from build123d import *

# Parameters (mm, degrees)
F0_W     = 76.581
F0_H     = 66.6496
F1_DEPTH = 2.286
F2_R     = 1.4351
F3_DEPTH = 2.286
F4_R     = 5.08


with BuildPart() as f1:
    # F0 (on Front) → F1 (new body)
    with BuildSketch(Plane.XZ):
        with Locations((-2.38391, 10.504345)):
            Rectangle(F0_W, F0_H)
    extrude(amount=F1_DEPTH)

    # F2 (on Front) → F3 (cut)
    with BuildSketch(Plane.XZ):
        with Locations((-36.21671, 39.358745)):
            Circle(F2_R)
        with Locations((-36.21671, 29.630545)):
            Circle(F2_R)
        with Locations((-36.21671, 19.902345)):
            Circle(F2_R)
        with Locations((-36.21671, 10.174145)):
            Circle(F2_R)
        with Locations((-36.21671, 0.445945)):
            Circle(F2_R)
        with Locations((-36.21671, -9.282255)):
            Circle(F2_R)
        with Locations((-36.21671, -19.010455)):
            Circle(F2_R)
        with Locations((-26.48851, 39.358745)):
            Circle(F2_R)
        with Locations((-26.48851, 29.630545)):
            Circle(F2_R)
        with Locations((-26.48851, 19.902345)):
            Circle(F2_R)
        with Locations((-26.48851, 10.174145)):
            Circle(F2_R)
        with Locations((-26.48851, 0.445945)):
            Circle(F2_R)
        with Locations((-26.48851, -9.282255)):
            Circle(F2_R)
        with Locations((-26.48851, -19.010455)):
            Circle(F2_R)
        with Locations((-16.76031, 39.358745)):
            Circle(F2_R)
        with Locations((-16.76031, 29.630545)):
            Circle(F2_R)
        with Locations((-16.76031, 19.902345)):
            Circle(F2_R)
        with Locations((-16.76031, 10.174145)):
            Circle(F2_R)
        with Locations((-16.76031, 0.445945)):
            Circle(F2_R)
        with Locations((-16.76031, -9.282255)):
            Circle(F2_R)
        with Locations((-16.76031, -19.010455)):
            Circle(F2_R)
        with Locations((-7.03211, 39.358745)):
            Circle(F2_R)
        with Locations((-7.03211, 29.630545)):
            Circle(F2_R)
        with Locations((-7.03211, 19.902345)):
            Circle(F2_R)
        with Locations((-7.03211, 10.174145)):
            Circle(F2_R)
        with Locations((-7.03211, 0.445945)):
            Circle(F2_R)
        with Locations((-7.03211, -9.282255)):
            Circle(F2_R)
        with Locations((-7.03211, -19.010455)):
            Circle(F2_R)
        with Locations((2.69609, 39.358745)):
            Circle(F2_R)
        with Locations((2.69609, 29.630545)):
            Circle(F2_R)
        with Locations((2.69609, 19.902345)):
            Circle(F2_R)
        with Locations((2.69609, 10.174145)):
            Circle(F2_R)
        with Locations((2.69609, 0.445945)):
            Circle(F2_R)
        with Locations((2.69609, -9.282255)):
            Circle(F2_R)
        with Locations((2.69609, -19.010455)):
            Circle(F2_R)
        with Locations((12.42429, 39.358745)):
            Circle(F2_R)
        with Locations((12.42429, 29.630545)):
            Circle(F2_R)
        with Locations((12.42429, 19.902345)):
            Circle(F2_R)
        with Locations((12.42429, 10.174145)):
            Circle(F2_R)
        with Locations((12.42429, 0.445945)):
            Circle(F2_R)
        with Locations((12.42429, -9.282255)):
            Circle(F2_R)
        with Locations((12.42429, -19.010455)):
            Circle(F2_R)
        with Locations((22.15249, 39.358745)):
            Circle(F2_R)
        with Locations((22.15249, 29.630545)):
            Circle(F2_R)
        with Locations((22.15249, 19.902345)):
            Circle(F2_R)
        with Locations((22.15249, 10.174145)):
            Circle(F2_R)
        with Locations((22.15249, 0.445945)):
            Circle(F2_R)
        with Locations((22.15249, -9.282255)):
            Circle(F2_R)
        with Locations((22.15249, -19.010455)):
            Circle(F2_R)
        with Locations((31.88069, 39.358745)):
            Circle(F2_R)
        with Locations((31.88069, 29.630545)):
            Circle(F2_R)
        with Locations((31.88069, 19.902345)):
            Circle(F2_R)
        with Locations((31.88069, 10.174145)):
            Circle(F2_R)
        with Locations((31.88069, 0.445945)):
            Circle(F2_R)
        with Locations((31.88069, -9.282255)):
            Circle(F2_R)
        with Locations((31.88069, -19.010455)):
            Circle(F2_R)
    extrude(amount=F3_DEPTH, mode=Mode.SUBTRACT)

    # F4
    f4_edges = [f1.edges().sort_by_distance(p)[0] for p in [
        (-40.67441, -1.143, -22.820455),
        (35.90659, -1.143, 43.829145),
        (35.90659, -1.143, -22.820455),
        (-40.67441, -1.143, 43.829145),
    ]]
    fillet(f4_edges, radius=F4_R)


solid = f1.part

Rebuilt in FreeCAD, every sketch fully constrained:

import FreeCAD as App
import Part
import Sketcher

V = App.Vector
Q = App.Units.Quantity


def edges_at(feature, points):
    """Names of the edges that pass closest to the given points."""
    edges = feature.Shape.Edges
    near = lambda p: min(range(len(edges)), key=lambda i: edges[i].distToShape(Part.Vertex(*p))[0])
    return sorted({f"Edge{near(p) + 1}" for p in points})


def add_polygon(sketch, points):
    """Adds a closed chain of lines whose ends are joined by coincident constraints."""
    first, n = sketch.GeometryCount, len(points)
    for a, b in zip(points, points[1:] + points[:1]):
        sketch.addGeometry(Part.LineSegment(App.Vector(*a, 0), App.Vector(*b, 0)), False)
    for i in range(n):
        sketch.addConstraint(Sketcher.Constraint("Coincident", first + i, 2, first + (i + 1) % n, 1))

doc = App.newDocument("Part")
params = doc.addObject("Spreadsheet::Sheet", "Params")
for row, (alias, value) in enumerate([
    ("sketch1_width", "3.015 in"),
    ("sketch1_height", "2.624 in"),
    ("pad1_length", "0.09 in"),
    ("sketch2_diameter", "0.113 in"),
    ("pocket1_length", "0.09 in"),
    ("fillet_radius", "0.2 in"),
], start=1):
    params.set(f"A{row}", alias)
    params.set(f"B{row}", "=" + value)
    params.setAlias(f"B{row}", alias)

body = doc.addObject("PartDesign::Body", "Body")

# Sketch on XZ plane
sketch1 = body.newObject("Sketcher::SketchObject", "Sketch")
sketch1.AttachmentSupport = (doc.getObject("XZ_Plane"), [""])
sketch1.MapMode = "FlatFace"
add_polygon(sketch1, [(-40.67441, 43.829145), (-40.67441, -22.820455), (35.90659, -22.820455), (35.90659, 43.829145)])  # lines 0-3
sketch1.addConstraint([
    Sketcher.Constraint("Vertical", 0),
    Sketcher.Constraint("Horizontal", 1),
    Sketcher.Constraint("Vertical", 2),
    Sketcher.Constraint("Horizontal", 3),
    Sketcher.Constraint("DistanceX", 1, 1, 1, 2, Q("3.015 in")),
    Sketcher.Constraint("DistanceY", 0, 2, 0, 1, Q("2.624 in")),
    Sketcher.Constraint("DistanceX", 0, 2, -1, 1, 40.67441),
    Sketcher.Constraint("DistanceY", 0, 2, -1, 1, 22.820455),
])
sketch1.setExpression("Constraints[8]", "Params.sketch1_width")
sketch1.setExpression("Constraints[9]", "Params.sketch1_height")
pad1 = body.newObject("PartDesign::Pad", "Pad")
pad1.Profile = sketch1
pad1.setExpression("Length", "Params.pad1_length")

# Sketch on XZ plane
sketch2 = body.newObject("Sketcher::SketchObject", "Sketch001")
sketch2.AttachmentSupport = (doc.getObject("XZ_Plane"), [""])
sketch2.MapMode = "FlatFace"
sketch2.addGeometry([
    Part.Circle(V(-36.21671, 39.358745, 0), V(0, 0, 1), 1.4351),  # 0
    Part.Circle(V(-36.21671, 29.630545, 0), V(0, 0, 1), 1.4351),  # 1
    Part.Circle(V(-36.21671, 19.902345, 0), V(0, 0, 1), 1.4351),  # 2
    Part.Circle(V(-36.21671, 10.174145, 0), V(0, 0, 1), 1.4351),  # 3
    Part.Circle(V(-36.21671, 0.445945, 0), V(0, 0, 1), 1.4351),  # 4
    Part.Circle(V(-36.21671, -9.282255, 0), V(0, 0, 1), 1.4351),  # 5
    Part.Circle(V(-36.21671, -19.010455, 0), V(0, 0, 1), 1.4351),  # 6
    Part.Circle(V(-26.48851, 39.358745, 0), V(0, 0, 1), 1.4351),  # 7
    Part.Circle(V(-26.48851, 29.630545, 0), V(0, 0, 1), 1.4351),  # 8
    Part.Circle(V(-26.48851, 19.902345, 0), V(0, 0, 1), 1.4351),  # 9
    Part.Circle(V(-26.48851, 10.174145, 0), V(0, 0, 1), 1.4351),  # 10
    Part.Circle(V(-26.48851, 0.445945, 0), V(0, 0, 1), 1.4351),  # 11
    Part.Circle(V(-26.48851, -9.282255, 0), V(0, 0, 1), 1.4351),  # 12
    Part.Circle(V(-26.48851, -19.010455, 0), V(0, 0, 1), 1.4351),  # 13
    Part.Circle(V(-16.76031, 39.358745, 0), V(0, 0, 1), 1.4351),  # 14
    Part.Circle(V(-16.76031, 29.630545, 0), V(0, 0, 1), 1.4351),  # 15
    Part.Circle(V(-16.76031, 19.902345, 0), V(0, 0, 1), 1.4351),  # 16
    Part.Circle(V(-16.76031, 10.174145, 0), V(0, 0, 1), 1.4351),  # 17
    Part.Circle(V(-16.76031, 0.445945, 0), V(0, 0, 1), 1.4351),  # 18
    Part.Circle(V(-16.76031, -9.282255, 0), V(0, 0, 1), 1.4351),  # 19
    Part.Circle(V(-16.76031, -19.010455, 0), V(0, 0, 1), 1.4351),  # 20
    Part.Circle(V(-7.03211, 39.358745, 0), V(0, 0, 1), 1.4351),  # 21
    Part.Circle(V(-7.03211, 29.630545, 0), V(0, 0, 1), 1.4351),  # 22
    Part.Circle(V(-7.03211, 19.902345, 0), V(0, 0, 1), 1.4351),  # 23
    Part.Circle(V(-7.03211, 10.174145, 0), V(0, 0, 1), 1.4351),  # 24
    Part.Circle(V(-7.03211, 0.445945, 0), V(0, 0, 1), 1.4351),  # 25
    Part.Circle(V(-7.03211, -9.282255, 0), V(0, 0, 1), 1.4351),  # 26
    Part.Circle(V(-7.03211, -19.010455, 0), V(0, 0, 1), 1.4351),  # 27
    Part.Circle(V(2.69609, 39.358745, 0), V(0, 0, 1), 1.4351),  # 28
    Part.Circle(V(2.69609, 29.630545, 0), V(0, 0, 1), 1.4351),  # 29
    Part.Circle(V(2.69609, 19.902345, 0), V(0, 0, 1), 1.4351),  # 30
    Part.Circle(V(2.69609, 10.174145, 0), V(0, 0, 1), 1.4351),  # 31
    Part.Circle(V(2.69609, 0.445945, 0), V(0, 0, 1), 1.4351),  # 32
    Part.Circle(V(2.69609, -9.282255, 0), V(0, 0, 1), 1.4351),  # 33
    Part.Circle(V(2.69609, -19.010455, 0), V(0, 0, 1), 1.4351),  # 34
    Part.Circle(V(12.42429, 39.358745, 0), V(0, 0, 1), 1.4351),  # 35
    Part.Circle(V(12.42429, 29.630545, 0), V(0, 0, 1), 1.4351),  # 36
    Part.Circle(V(12.42429, 19.902345, 0), V(0, 0, 1), 1.4351),  # 37
    Part.Circle(V(12.42429, 10.174145, 0), V(0, 0, 1), 1.4351),  # 38
    Part.Circle(V(12.42429, 0.445945, 0), V(0, 0, 1), 1.4351),  # 39
    Part.Circle(V(12.42429, -9.282255, 0), V(0, 0, 1), 1.4351),  # 40
    Part.Circle(V(12.42429, -19.010455, 0), V(0, 0, 1), 1.4351),  # 41
    Part.Circle(V(22.15249, 39.358745, 0), V(0, 0, 1), 1.4351),  # 42
    Part.Circle(V(22.15249, 29.630545, 0), V(0, 0, 1), 1.4351),  # 43
    Part.Circle(V(22.15249, 19.902345, 0), V(0, 0, 1), 1.4351),  # 44
    Part.Circle(V(22.15249, 10.174145, 0), V(0, 0, 1), 1.4351),  # 45
    Part.Circle(V(22.15249, 0.445945, 0), V(0, 0, 1), 1.4351),  # 46
    Part.Circle(V(22.15249, -9.282255, 0), V(0, 0, 1), 1.4351),  # 47
    Part.Circle(V(22.15249, -19.010455, 0), V(0, 0, 1), 1.4351),  # 48
    Part.Circle(V(31.88069, 39.358745, 0), V(0, 0, 1), 1.4351),  # 49
    Part.Circle(V(31.88069, 29.630545, 0), V(0, 0, 1), 1.4351),  # 50
    Part.Circle(V(31.88069, 19.902345, 0), V(0, 0, 1), 1.4351),  # 51
    Part.Circle(V(31.88069, 10.174145, 0), V(0, 0, 1), 1.4351),  # 52
    Part.Circle(V(31.88069, 0.445945, 0), V(0, 0, 1), 1.4351),  # 53
    Part.Circle(V(31.88069, -9.282255, 0), V(0, 0, 1), 1.4351),  # 54
    Part.Circle(V(31.88069, -19.010455, 0), V(0, 0, 1), 1.4351),  # 55
], False)
sketch2.addConstraint([
    Sketcher.Constraint("Equal", 0, 1),
    Sketcher.Constraint("Equal", 1, 2),
    Sketcher.Constraint("Equal", 2, 3),
    Sketcher.Constraint("Equal", 3, 4),
    Sketcher.Constraint("Equal", 4, 5),
    Sketcher.Constraint("Equal", 5, 6),
    Sketcher.Constraint("Equal", 6, 7),
    Sketcher.Constraint("Equal", 7, 8),
    Sketcher.Constraint("Equal", 8, 9),
    Sketcher.Constraint("Equal", 9, 10),
    Sketcher.Constraint("Equal", 10, 11),
    Sketcher.Constraint("Equal", 11, 12),
    Sketcher.Constraint("Equal", 12, 13),
    Sketcher.Constraint("Equal", 13, 14),
    Sketcher.Constraint("Equal", 14, 15),
    Sketcher.Constraint("Equal", 15, 16),
    Sketcher.Constraint("Equal", 16, 17),
    Sketcher.Constraint("Equal", 17, 18),
    Sketcher.Constraint("Equal", 18, 19),
    Sketcher.Constraint("Equal", 19, 20),
    Sketcher.Constraint("Equal", 20, 21),
    Sketcher.Constraint("Equal", 21, 22),
    Sketcher.Constraint("Equal", 22, 23),
    Sketcher.Constraint("Equal", 23, 24),
    Sketcher.Constraint("Equal", 24, 25),
    Sketcher.Constraint("Equal", 25, 26),
    Sketcher.Constraint("Equal", 26, 27),
    Sketcher.Constraint("Equal", 27, 28),
    Sketcher.Constraint("Equal", 28, 29),
    Sketcher.Constraint("Equal", 29, 30),
    Sketcher.Constraint("Equal", 30, 31),
    Sketcher.Constraint("Equal", 31, 32),
    Sketcher.Constraint("Equal", 32, 33),
    Sketcher.Constraint("Equal", 33, 34),
    Sketcher.Constraint("Equal", 34, 35),
    Sketcher.Constraint("Equal", 35, 36),
    Sketcher.Constraint("Equal", 36, 37),
    Sketcher.Constraint("Equal", 37, 38),
    Sketcher.Constraint("Equal", 38, 39),
    Sketcher.Constraint("Equal", 39, 40),
    Sketcher.Constraint("Equal", 40, 41),
    Sketcher.Constraint("Equal", 41, 42),
    Sketcher.Constraint("Equal", 42, 43),
    Sketcher.Constraint("Equal", 43, 44),
    Sketcher.Constraint("Equal", 44, 45),
    Sketcher.Constraint("Equal", 45, 46),
    Sketcher.Constraint("Equal", 46, 47),
    Sketcher.Constraint("Equal", 47, 48),
    Sketcher.Constraint("Equal", 48, 49),
    Sketcher.Constraint("Equal", 49, 50),
    Sketcher.Constraint("Equal", 50, 51),
    Sketcher.Constraint("Equal", 51, 52),
    Sketcher.Constraint("Equal", 52, 53),
    Sketcher.Constraint("Equal", 53, 54),
    Sketcher.Constraint("Equal", 54, 55),
    Sketcher.Constraint("Horizontal", 0, 3, 7, 3),
    Sketcher.Constraint("Horizontal", 1, 3, 8, 3),
    Sketcher.Constraint("Horizontal", 2, 3, 9, 3),
    Sketcher.Constraint("Horizontal", 3, 3, 10, 3),
    Sketcher.Constraint("Horizontal", 4, 3, 11, 3),
    Sketcher.Constraint("Horizontal", 5, 3, 12, 3),
    Sketcher.Constraint("Horizontal", 6, 3, 13, 3),
    Sketcher.Constraint("Horizontal", 7, 3, 14, 3),
    Sketcher.Constraint("Horizontal", 8, 3, 15, 3),
    Sketcher.Constraint("Horizontal", 9, 3, 16, 3),
    Sketcher.Constraint("Horizontal", 10, 3, 17, 3),
    Sketcher.Constraint("Horizontal", 11, 3, 18, 3),
    Sketcher.Constraint("Horizontal", 12, 3, 19, 3),
    Sketcher.Constraint("Horizontal", 13, 3, 20, 3),
    Sketcher.Constraint("Horizontal", 14, 3, 21, 3),
    Sketcher.Constraint("Horizontal", 15, 3, 22, 3),
    Sketcher.Constraint("Horizontal", 16, 3, 23, 3),
    Sketcher.Constraint("Horizontal", 17, 3, 24, 3),
    Sketcher.Constraint("Horizontal", 18, 3, 25, 3),
    Sketcher.Constraint("Horizontal", 19, 3, 26, 3),
    Sketcher.Constraint("Horizontal", 20, 3, 27, 3),
    Sketcher.Constraint("Horizontal", 21, 3, 28, 3),
    Sketcher.Constraint("Horizontal", 22, 3, 29, 3),
    Sketcher.Constraint("Horizontal", 23, 3, 30, 3),
    Sketcher.Constraint("Horizontal", 24, 3, 31, 3),
    Sketcher.Constraint("Horizontal", 25, 3, 32, 3),
    Sketcher.Constraint("Horizontal", 26, 3, 33, 3),
    Sketcher.Constraint("Horizontal", 27, 3, 34, 3),
    Sketcher.Constraint("Horizontal", 28, 3, 35, 3),
    Sketcher.Constraint("Horizontal", 29, 3, 36, 3),
    Sketcher.Constraint("Horizontal", 30, 3, 37, 3),
    Sketcher.Constraint("Horizontal", 31, 3, 38, 3),
    Sketcher.Constraint("Horizontal", 32, 3, 39, 3),
    Sketcher.Constraint("Horizontal", 33, 3, 40, 3),
    Sketcher.Constraint("Horizontal", 34, 3, 41, 3),
    Sketcher.Constraint("Horizontal", 35, 3, 42, 3),
    Sketcher.Constraint("Horizontal", 36, 3, 43, 3),
    Sketcher.Constraint("Horizontal", 37, 3, 44, 3),
    Sketcher.Constraint("Horizontal", 38, 3, 45, 3),
    Sketcher.Constraint("Horizontal", 39, 3, 46, 3),
    Sketcher.Constraint("Horizontal", 40, 3, 47, 3),
    Sketcher.Constraint("Horizontal", 41, 3, 48, 3),
    Sketcher.Constraint("Horizontal", 42, 3, 49, 3),
    Sketcher.Constraint("Horizontal", 43, 3, 50, 3),
    Sketcher.Constraint("Horizontal", 44, 3, 51, 3),
    Sketcher.Constraint("Horizontal", 45, 3, 52, 3),
    Sketcher.Constraint("Horizontal", 46, 3, 53, 3),
    Sketcher.Constraint("Horizontal", 47, 3, 54, 3),
    Sketcher.Constraint("Horizontal", 48, 3, 55, 3),
    Sketcher.Constraint("Vertical", 0, 3, 1, 3),
    Sketcher.Constraint("Vertical", 1, 3, 2, 3),
    Sketcher.Constraint("Vertical", 2, 3, 3, 3),
    Sketcher.Constraint("Vertical", 3, 3, 4, 3),
    Sketcher.Constraint("Vertical", 4, 3, 5, 3),
    Sketcher.Constraint("Vertical", 5, 3, 6, 3),
    Sketcher.Constraint("Vertical", 7, 3, 8, 3),
    Sketcher.Constraint("Vertical", 8, 3, 9, 3),
    Sketcher.Constraint("Vertical", 9, 3, 10, 3),
    Sketcher.Constraint("Vertical", 10, 3, 11, 3),
    Sketcher.Constraint("Vertical", 11, 3, 12, 3),
    Sketcher.Constraint("Vertical", 12, 3, 13, 3),
    Sketcher.Constraint("Vertical", 14, 3, 15, 3),
    Sketcher.Constraint("Vertical", 15, 3, 16, 3),
    Sketcher.Constraint("Vertical", 16, 3, 17, 3),
    Sketcher.Constraint("Vertical", 17, 3, 18, 3),
    Sketcher.Constraint("Vertical", 18, 3, 19, 3),
    Sketcher.Constraint("Vertical", 19, 3, 20, 3),
    Sketcher.Constraint("Vertical", 21, 3, 22, 3),
    Sketcher.Constraint("Vertical", 22, 3, 23, 3),
    Sketcher.Constraint("Vertical", 23, 3, 24, 3),
    Sketcher.Constraint("Vertical", 24, 3, 25, 3),
    Sketcher.Constraint("Vertical", 25, 3, 26, 3),
    Sketcher.Constraint("Vertical", 26, 3, 27, 3),
    Sketcher.Constraint("Vertical", 28, 3, 29, 3),
    Sketcher.Constraint("Vertical", 29, 3, 30, 3),
    Sketcher.Constraint("Vertical", 30, 3, 31, 3),
    Sketcher.Constraint("Vertical", 31, 3, 32, 3),
    Sketcher.Constraint("Vertical", 32, 3, 33, 3),
    Sketcher.Constraint("Vertical", 33, 3, 34, 3),
    Sketcher.Constraint("Vertical", 35, 3, 36, 3),
    Sketcher.Constraint("Vertical", 36, 3, 37, 3),
    Sketcher.Constraint("Vertical", 37, 3, 38, 3),
    Sketcher.Constraint("Vertical", 38, 3, 39, 3),
    Sketcher.Constraint("Vertical", 39, 3, 40, 3),
    Sketcher.Constraint("Vertical", 40, 3, 41, 3),
    Sketcher.Constraint("Vertical", 42, 3, 43, 3),
    Sketcher.Constraint("Vertical", 43, 3, 44, 3),
    Sketcher.Constraint("Vertical", 44, 3, 45, 3),
    Sketcher.Constraint("Vertical", 45, 3, 46, 3),
    Sketcher.Constraint("Vertical", 46, 3, 47, 3),
    Sketcher.Constraint("Vertical", 47, 3, 48, 3),
    Sketcher.Constraint("Vertical", 49, 3, 50, 3),
    Sketcher.Constraint("Vertical", 50, 3, 51, 3),
    Sketcher.Constraint("Vertical", 51, 3, 52, 3),
    Sketcher.Constraint("Vertical", 52, 3, 53, 3),
    Sketcher.Constraint("Vertical", 53, 3, 54, 3),
    Sketcher.Constraint("Vertical", 54, 3, 55, 3),
    Sketcher.Constraint("Diameter", 0, Q("0.113 in")),
    Sketcher.Constraint("DistanceY", 1, 3, 0, 3, Q("0.383 in")),
    Sketcher.Constraint("DistanceY", 2, 3, 1, 3, Q("0.383 in")),
    Sketcher.Constraint("DistanceY", 3, 3, 2, 3, Q("0.383 in")),
    Sketcher.Constraint("DistanceY", 4, 3, 3, 3, Q("0.383 in")),
    Sketcher.Constraint("DistanceY", 5, 3, 4, 3, Q("0.383 in")),
    Sketcher.Constraint("DistanceY", 6, 3, 5, 3, Q("0.383 in")),
    Sketcher.Constraint("DistanceX", 0, 3, 7, 3, Q("0.383 in")),
    Sketcher.Constraint("DistanceX", 7, 3, 14, 3, Q("0.383 in")),
    Sketcher.Constraint("DistanceX", 14, 3, 21, 3, Q("0.383 in")),
    Sketcher.Constraint("DistanceX", 21, 3, 28, 3, Q("0.383 in")),
    Sketcher.Constraint("DistanceX", 28, 3, 35, 3, Q("0.383 in")),
    Sketcher.Constraint("DistanceX", 35, 3, 42, 3, Q("0.383 in")),
    Sketcher.Constraint("DistanceX", 42, 3, 49, 3, Q("0.383 in")),
    Sketcher.Constraint("DistanceX", 0, 3, -1, 1, 36.21671),
    Sketcher.Constraint("DistanceY", -1, 1, 0, 3, 39.358745),
])
sketch2.setExpression("Constraints[152]", "Params.sketch2_diameter")
pocket1 = body.newObject("PartDesign::Pocket", "Pocket")
pocket1.Profile = sketch2
pocket1.setExpression("Length", "Params.pocket1_length")
pocket1.Reversed = True
doc.recompute()

fillet = body.newObject("PartDesign::Fillet", "Fillet")
fillet.Base = (pocket1, edges_at(pocket1, [
    (-40.674, -1.143, -22.82),
    (35.907, -1.143, 43.829),
    (35.907, -1.143, -22.82),
    (-40.674, -1.143, 43.829),
]))
fillet.setExpression("Radius", "Params.fillet_radius")

doc.recompute()
